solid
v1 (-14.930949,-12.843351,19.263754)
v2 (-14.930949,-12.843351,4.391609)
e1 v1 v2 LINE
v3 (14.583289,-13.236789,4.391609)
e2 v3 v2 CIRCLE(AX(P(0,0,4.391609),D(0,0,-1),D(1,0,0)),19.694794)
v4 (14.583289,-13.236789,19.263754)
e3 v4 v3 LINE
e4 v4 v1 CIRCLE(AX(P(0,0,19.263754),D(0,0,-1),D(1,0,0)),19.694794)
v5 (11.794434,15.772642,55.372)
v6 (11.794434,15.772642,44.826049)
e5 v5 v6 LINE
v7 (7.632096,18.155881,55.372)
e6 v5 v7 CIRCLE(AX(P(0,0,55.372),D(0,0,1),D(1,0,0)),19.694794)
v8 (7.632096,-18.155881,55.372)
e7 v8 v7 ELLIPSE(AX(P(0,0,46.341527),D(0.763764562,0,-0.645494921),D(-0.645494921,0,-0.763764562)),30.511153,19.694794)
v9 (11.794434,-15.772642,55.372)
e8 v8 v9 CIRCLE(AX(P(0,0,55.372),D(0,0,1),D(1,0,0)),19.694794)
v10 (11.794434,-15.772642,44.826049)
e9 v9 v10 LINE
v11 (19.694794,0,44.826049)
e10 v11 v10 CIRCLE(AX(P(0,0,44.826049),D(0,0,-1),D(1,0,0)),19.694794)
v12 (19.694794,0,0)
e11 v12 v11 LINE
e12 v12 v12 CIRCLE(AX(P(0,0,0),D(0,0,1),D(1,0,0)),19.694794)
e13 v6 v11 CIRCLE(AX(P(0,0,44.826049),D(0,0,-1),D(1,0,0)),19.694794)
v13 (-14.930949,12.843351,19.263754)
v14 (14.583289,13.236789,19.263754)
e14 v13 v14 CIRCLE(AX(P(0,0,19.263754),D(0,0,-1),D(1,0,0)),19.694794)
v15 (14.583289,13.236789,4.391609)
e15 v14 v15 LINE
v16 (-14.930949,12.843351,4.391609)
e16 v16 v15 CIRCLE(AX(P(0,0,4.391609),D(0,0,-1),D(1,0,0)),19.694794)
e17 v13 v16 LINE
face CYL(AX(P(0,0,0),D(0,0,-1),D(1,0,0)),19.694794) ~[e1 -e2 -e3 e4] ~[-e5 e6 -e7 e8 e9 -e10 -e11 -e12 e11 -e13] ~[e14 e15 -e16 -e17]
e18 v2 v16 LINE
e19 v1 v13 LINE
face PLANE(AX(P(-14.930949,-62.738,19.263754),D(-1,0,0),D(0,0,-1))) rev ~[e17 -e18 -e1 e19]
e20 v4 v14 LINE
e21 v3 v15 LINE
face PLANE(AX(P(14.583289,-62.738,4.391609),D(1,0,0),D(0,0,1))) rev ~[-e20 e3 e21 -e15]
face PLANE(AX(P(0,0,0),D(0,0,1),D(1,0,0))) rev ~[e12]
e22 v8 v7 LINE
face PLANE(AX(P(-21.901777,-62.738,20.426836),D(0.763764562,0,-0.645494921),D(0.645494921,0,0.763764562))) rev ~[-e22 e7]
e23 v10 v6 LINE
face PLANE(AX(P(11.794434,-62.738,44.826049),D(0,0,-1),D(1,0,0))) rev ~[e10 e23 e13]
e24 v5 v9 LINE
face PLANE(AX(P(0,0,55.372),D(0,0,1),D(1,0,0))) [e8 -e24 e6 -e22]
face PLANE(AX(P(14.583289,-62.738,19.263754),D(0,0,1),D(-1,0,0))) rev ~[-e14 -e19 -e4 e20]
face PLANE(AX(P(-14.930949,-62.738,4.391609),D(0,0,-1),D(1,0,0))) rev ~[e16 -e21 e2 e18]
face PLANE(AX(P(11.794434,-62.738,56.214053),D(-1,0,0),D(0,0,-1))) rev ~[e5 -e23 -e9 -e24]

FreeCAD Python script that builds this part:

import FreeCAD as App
import Part
import Sketcher

V = App.Vector
Q = App.Units.Quantity


def add_polygon(sketch, points):
    """Adds a closed chain of lines whose ends are joined by coincident constraints."""
    first, n = sketch.GeometryCount, len(points)
    for a, b in zip(points, points[1:] + points[:1]):
        sketch.addGeometry(Part.LineSegment(App.Vector(*a, 0), App.Vector(*b, 0)), False)
    for i in range(n):
        sketch.addConstraint(Sketcher.Constraint("Coincident", first + i, 2, first + (i + 1) % n, 1))

doc = App.newDocument("Part")
body = doc.addObject("PartDesign::Body", "Body")

# Sketch on XY plane
sketch1 = doc.addObject("Sketcher::SketchObject", "Sketch")
body.addObject(sketch1)
sketch1.AttachmentSupport = (doc.XY_Plane, [""])
sketch1.MapMode = "FlatFace"
sketch1.addGeometry(Part.Circle(V(0, 0, 0), V(0, 0, 1), 20), False)
sketch1.addConstraint([
    Sketcher.Constraint("Coincident", 0, 3, -1, 1),
    Sketcher.Constraint("Diameter", 0, 39.389588),
])
pad1 = doc.addObject("PartDesign::Pad", "Pad")
body.addObject(pad1)
pad1.Profile = sketch1
pad1.Length = Q("2.18 in")

# Sketch on XZ plane
sketch2 = doc.addObject("Sketcher::SketchObject", "Sketch001")
body.addObject(sketch2)
sketch2.AttachmentSupport = (doc.XZ_Plane, [""])
sketch2.MapMode = "FlatFace"
sketch2.AttachmentOffset = App.Placement(V(0, 0, 2.47 * 25.4), App.Rotation())
add_polygon(sketch2, [(24, 62), (12, 56), (12, 45), (24, 45)])  # lines 0-3
sketch2.addConstraint([
    Sketcher.Constraint("Vertical", 1),
    Sketcher.Constraint("Horizontal", 2),
    Sketcher.Constraint("Vertical", 3),
    Sketcher.Constraint("DistanceY", 3, 1, 3, 2, 16.965699),
    Sketcher.Constraint("Distance", 0, 13.30853),
    Sketcher.Constraint("DistanceX", 2, 1, 2, 2, 12.083306),
    Sketcher.Constraint("DistanceY", -1, 1, 1, 2, 44.826049),
    Sketcher.Constraint("DistanceX", -1, 1, 2, 2, 23.87774),
])
pocket1 = doc.addObject("PartDesign::Pocket", "Pocket")
body.addObject(pocket1)
pocket1.Profile = sketch2
pocket1.Length = Q("4.49 in")

# Sketch on XZ plane
sketch3 = doc.addObject("Sketcher::SketchObject", "Sketch002")
body.addObject(sketch3)
sketch3.AttachmentSupport = (doc.XZ_Plane, [""])
sketch3.MapMode = "FlatFace"
sketch3.AttachmentOffset = App.Placement(V(0, 0, 2.47 * 25.4), App.Rotation())
add_polygon(sketch3, [(-15, 19), (-15, 4), (15, 4), (15, 19)])  # lines 0-3
add_polygon(sketch3, [(9, 56), (0, 56), (-22, 58), (-22, 20)])  # lines 4-7
sketch3.addConstraint([
    Sketcher.Constraint("Vertical", 0),
    Sketcher.Constraint("Horizontal", 1),
    Sketcher.Constraint("Vertical", 2),
    Sketcher.Constraint("Horizontal", 3),
    Sketcher.Constraint("Horizontal", 4),
    Sketcher.Constraint("Vertical", 6),
    Sketcher.Constraint("PointOnObject", 4, 2, -2),
    Sketcher.Constraint("DistanceY", -1, 1, 5, 2, Q("2.2680002 in")),
    Sketcher.Constraint("Distance", 7, 47.160919),
    Sketcher.Constraint("DistanceX", 1, 1, 1, 2, 29.514238),
    Sketcher.Constraint("DistanceX", 4, 2, 4, 1, 8.540357),
    Sketcher.Constraint("DistanceY", 0, 2, 0, 1, 14.872145),
    Sketcher.Constraint("DistanceY", 6, 2, 6, 1, 37.180368),
    Sketcher.Constraint("DistanceX", 0, 2, -1, 1, 14.930949),
    Sketcher.Constraint("DistanceY", -1, 1, 0, 2, 4.391609),
    Sketcher.Constraint("DistanceY", 2, 2, 4, 2, 37.182921),
])
pocket2 = doc.addObject("PartDesign::Pocket", "Pocket001")
body.addObject(pocket2)
pocket2.Profile = sketch3
pocket2.Length = Q("10 in")

doc.recompute()
